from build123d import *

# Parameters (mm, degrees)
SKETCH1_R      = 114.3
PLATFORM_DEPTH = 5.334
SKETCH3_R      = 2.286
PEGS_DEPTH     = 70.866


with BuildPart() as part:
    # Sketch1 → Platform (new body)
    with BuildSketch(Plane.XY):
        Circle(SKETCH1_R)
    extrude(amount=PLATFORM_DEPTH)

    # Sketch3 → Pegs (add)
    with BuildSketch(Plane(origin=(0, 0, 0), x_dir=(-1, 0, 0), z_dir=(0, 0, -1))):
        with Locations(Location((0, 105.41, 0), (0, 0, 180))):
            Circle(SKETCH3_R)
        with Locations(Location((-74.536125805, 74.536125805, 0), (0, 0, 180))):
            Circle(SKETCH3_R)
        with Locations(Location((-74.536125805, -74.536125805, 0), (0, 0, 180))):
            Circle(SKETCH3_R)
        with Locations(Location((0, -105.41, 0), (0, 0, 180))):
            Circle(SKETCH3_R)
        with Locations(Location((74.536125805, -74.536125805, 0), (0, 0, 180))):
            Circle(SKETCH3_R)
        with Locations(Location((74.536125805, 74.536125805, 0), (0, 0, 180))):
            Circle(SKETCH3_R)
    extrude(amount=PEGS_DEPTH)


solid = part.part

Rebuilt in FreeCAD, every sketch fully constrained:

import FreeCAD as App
import Part
import Sketcher
Q = App.Units.Quantity

doc = App.newDocument("Part")
body = doc.addObject("PartDesign::Body", "Body")

# Sketch on XY plane
sketch1 = body.newObject("Sketcher::SketchObject", "Sketch")
sketch1.AttachmentSupport = (doc.getObject("XY_Plane"), [""])
sketch1.MapMode = "FlatFace"
sketch1.addGeometry(Part.Circle(App.Vector(0, 0, 0), App.Vector(0, 0, 1), 114), False)
sketch1.addConstraint(Sketcher.Constraint("Coincident", 0, 3, -1, 1))
sketch1.addConstraint(Sketcher.Constraint("Diameter", 0, Q("9 in")))
pad1 = body.newObject("PartDesign::Pad", "Pad")
pad1.Profile = sketch1
pad1.Length = Q("0.21 in")

# Sketch on XY plane
sketch2 = body.newObject("Sketcher::SketchObject", "Sketch001")
sketch2.AttachmentSupport = (doc.getObject("XY_Plane"), [""])
sketch2.MapMode = "FlatFace"
sketch2.addGeometry(Part.Circle(App.Vector(0, 105.4, 0), App.Vector(0, 0, 1), 2.3), False)
sketch2.addGeometry(Part.Circle(App.Vector(74.5, 74.5, 0), App.Vector(0, 0, 1), 2.3), False)
sketch2.addGeometry(Part.Circle(App.Vector(74.5, -74.5, 0), App.Vector(0, 0, 1), 2.3), False)
sketch2.addGeometry(Part.Circle(App.Vector(0, -105.4, 0), App.Vector(0, 0, 1), 2.3), False)
sketch2.addGeometry(Part.Circle(App.Vector(-74.5, -74.5, 0), App.Vector(0, 0, 1), 2.3), False)
sketch2.addGeometry(Part.Circle(App.Vector(-74.5, 74.5, 0), App.Vector(0, 0, 1), 2.3), False)
sketch2.addConstraint(Sketcher.Constraint("Equal", 0, 1))
sketch2.addConstraint(Sketcher.Constraint("Equal", 1, 2))
sketch2.addConstraint(Sketcher.Constraint("Equal", 2, 3))
sketch2.addConstraint(Sketcher.Constraint("Equal", 3, 4))
sketch2.addConstraint(Sketcher.Constraint("Equal", 4, 5))
sketch2.addConstraint(Sketcher.Constraint("Symmetric", 0, 3, 3, 3, -1, 1))
sketch2.addConstraint(Sketcher.Constraint("Symmetric", 1, 3, 4, 3, -1, 1))
sketch2.addConstraint(Sketcher.Constraint("Symmetric", 2, 3, 5, 3, -1, 1))
sketch2.addConstraint(Sketcher.Constraint("Symmetric", 2, 3, 4, 3, -2))
sketch2.addConstraint(Sketcher.Constraint("PointOnObject", 0, 3, -2))
sketch2.addConstraint(Sketcher.Constraint("Diameter", 0, Q("0.18 in")))
sketch2.addConstraint(Sketcher.Constraint("DistanceY", 3, 3, 0, 3, Q("8.3 in")))
sketch2.addConstraint(Sketcher.Constraint("DistanceY", 2, 3, 1, 3, Q("149.072252 mm")))
sketch2.addConstraint(Sketcher.Constraint("DistanceX", 4, 3, 2, 3, Q("149.072252 mm")))
pad2 = body.newObject("PartDesign::Pad", "Pad001")
pad2.Profile = sketch2
pad2.Length = Q("2.79 in")
pad2.Reversed = True

doc.recompute()
